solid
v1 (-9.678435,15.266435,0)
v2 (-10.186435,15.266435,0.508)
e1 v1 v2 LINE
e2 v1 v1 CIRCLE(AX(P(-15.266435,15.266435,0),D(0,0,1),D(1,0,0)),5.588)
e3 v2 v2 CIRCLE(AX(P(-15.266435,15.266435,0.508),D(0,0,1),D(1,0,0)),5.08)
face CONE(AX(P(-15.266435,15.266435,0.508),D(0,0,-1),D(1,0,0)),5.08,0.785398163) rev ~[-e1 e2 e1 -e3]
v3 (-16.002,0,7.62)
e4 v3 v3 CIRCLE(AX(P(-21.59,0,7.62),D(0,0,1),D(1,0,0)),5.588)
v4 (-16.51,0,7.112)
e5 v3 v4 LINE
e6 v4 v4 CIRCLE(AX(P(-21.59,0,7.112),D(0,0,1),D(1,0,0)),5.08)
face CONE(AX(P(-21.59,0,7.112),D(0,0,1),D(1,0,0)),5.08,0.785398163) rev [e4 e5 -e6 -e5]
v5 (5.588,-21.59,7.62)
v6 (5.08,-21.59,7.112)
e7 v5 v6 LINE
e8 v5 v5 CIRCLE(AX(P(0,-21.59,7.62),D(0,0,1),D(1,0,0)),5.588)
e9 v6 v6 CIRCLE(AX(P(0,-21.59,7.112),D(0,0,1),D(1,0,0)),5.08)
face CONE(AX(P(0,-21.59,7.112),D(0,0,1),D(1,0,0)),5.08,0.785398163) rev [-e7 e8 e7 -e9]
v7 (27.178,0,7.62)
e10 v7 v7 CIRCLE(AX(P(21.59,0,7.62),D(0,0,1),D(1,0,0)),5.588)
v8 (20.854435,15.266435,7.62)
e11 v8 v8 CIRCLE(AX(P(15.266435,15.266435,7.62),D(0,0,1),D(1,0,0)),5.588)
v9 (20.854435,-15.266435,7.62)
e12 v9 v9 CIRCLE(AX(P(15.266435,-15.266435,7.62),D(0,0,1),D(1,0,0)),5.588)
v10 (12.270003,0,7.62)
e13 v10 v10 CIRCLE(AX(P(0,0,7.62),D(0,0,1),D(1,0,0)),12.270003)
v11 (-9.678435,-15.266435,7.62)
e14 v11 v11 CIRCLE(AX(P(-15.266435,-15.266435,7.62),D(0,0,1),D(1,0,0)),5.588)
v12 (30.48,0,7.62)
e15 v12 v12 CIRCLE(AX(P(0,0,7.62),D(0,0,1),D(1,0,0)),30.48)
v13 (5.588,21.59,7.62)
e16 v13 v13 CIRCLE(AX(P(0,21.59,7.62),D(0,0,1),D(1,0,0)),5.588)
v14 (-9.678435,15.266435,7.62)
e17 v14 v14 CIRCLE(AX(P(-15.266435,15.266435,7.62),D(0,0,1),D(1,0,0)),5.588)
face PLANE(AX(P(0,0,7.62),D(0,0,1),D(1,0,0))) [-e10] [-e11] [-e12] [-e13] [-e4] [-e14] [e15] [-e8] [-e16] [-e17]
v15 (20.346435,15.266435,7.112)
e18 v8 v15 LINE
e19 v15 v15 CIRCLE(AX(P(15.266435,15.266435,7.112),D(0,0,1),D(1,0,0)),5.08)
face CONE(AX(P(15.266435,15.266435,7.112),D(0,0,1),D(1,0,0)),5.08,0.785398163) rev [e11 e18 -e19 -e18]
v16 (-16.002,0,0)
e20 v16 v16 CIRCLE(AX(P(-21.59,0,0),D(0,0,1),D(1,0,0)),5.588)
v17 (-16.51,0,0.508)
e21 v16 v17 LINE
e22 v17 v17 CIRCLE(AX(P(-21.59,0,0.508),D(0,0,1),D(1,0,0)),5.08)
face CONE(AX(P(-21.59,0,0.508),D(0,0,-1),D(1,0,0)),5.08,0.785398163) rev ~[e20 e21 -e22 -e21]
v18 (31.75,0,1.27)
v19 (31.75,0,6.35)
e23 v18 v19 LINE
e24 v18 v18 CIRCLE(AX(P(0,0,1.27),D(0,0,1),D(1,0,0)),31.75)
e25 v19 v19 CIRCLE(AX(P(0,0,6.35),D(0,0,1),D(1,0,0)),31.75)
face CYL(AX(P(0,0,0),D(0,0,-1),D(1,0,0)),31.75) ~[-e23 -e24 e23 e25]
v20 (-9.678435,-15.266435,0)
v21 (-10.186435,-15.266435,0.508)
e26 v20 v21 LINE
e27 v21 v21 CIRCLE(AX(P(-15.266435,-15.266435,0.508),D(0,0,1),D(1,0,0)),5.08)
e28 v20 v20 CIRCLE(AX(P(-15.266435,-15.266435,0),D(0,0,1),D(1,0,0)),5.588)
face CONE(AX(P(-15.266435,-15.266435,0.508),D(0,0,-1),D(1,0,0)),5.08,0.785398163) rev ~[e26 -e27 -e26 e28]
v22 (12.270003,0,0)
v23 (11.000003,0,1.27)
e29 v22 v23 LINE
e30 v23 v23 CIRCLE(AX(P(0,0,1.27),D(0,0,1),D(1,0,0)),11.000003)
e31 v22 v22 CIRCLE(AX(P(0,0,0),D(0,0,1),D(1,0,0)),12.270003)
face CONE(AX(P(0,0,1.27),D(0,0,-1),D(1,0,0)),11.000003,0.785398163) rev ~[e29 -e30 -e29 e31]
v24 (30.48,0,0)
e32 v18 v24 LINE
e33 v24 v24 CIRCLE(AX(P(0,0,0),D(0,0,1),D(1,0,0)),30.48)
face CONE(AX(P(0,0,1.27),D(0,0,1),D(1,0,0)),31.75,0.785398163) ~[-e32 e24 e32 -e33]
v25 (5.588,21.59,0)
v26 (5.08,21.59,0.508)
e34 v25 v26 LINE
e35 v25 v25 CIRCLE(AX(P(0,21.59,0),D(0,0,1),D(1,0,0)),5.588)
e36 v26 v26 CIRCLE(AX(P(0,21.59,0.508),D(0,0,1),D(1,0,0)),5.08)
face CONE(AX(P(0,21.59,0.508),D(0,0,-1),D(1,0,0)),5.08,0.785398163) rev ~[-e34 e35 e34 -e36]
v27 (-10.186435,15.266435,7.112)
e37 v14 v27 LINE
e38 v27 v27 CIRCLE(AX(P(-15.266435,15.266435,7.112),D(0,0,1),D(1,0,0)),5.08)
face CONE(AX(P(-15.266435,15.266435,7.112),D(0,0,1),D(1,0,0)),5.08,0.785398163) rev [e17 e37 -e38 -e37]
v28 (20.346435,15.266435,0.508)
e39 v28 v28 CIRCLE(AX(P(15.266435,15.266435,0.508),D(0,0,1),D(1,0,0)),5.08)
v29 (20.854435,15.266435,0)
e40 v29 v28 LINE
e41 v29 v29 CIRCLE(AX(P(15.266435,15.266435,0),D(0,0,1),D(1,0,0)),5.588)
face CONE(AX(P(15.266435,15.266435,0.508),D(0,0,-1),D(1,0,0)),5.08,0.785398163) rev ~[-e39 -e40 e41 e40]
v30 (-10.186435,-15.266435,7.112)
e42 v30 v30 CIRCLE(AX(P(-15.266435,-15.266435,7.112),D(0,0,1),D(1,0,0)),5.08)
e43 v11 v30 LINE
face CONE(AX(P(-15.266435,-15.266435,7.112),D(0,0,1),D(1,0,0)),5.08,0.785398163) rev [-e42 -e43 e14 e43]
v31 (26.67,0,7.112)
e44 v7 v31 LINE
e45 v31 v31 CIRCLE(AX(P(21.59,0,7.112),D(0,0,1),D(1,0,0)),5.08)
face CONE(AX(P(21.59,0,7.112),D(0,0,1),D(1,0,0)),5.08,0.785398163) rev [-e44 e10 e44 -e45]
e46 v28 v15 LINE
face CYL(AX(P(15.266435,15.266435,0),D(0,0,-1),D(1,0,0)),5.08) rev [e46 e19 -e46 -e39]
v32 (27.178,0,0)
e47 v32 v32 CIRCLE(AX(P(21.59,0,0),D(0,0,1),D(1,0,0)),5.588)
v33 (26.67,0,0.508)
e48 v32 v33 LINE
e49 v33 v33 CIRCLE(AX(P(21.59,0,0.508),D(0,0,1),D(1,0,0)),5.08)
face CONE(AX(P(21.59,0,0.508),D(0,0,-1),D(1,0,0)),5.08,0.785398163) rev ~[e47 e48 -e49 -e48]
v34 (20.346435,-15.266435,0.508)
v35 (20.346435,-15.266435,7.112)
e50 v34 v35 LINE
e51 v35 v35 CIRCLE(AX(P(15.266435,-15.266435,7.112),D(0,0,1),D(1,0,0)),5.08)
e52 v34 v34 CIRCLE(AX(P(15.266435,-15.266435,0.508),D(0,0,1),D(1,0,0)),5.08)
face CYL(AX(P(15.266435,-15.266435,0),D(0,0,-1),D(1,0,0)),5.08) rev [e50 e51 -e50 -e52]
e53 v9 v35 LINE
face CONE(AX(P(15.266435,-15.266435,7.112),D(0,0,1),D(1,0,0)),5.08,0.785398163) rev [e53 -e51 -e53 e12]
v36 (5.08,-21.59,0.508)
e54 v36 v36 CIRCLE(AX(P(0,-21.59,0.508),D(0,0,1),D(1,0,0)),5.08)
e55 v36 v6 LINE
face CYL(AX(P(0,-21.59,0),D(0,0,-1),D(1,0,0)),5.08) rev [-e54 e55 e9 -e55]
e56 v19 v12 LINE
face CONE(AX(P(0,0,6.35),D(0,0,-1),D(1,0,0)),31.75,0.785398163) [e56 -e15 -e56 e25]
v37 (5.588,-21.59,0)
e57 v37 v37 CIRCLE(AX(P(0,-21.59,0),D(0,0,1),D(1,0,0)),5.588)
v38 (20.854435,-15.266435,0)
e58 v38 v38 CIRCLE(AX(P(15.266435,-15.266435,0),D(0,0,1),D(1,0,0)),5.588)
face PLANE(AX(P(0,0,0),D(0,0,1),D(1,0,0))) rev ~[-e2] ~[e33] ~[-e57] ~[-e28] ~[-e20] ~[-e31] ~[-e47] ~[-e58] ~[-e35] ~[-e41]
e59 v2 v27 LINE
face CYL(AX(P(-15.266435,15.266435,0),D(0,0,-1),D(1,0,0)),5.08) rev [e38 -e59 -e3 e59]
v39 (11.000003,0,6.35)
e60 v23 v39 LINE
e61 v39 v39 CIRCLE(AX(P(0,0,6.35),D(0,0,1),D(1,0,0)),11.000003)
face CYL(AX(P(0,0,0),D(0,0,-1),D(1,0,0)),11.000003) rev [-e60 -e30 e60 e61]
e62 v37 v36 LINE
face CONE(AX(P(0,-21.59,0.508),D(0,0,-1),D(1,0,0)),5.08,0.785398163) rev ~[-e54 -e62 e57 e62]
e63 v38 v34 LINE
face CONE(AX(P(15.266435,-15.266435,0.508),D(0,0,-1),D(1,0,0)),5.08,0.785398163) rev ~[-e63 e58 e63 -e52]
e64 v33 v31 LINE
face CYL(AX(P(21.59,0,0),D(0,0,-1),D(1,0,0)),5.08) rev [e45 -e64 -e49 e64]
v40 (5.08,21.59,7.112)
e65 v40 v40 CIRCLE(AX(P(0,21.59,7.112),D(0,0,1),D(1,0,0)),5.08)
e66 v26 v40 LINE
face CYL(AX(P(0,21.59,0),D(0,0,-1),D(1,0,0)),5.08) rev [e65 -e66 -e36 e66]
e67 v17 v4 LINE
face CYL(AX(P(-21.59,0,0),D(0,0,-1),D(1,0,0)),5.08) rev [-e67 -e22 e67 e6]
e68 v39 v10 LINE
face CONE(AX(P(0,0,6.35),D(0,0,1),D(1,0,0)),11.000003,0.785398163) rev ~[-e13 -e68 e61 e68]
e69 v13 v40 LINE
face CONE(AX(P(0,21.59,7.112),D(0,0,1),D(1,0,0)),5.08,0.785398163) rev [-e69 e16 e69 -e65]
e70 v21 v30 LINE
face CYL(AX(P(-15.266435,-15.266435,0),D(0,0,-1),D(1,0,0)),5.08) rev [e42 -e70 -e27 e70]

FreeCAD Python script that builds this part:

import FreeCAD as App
import Part
import Sketcher
Q = App.Units.Quantity


def edges_at(feature, points):
    """Names of the edges that pass closest to the given points."""
    edges = feature.Shape.Edges
    near = lambda p: min(range(len(edges)), key=lambda i: edges[i].distToShape(Part.Vertex(*p))[0])
    return sorted({f"Edge{near(p) + 1}" for p in points})

doc = App.newDocument("Part")
body = doc.addObject("PartDesign::Body", "Body")

sketch1 = body.newObject("Sketcher::SketchObject", "Sketch")
sketch1.AttachmentSupport = (doc.getObject("XY_Plane"), [""])
sketch1.MapMode = "FlatFace"
sketch1.addGeometry(Part.Circle(App.Vector(0, 0, 0), App.Vector(0, 0, 1), 32), False)
sketch1.addGeometry(Part.Circle(App.Vector(-15, -15, 0), App.Vector(0, 0, 1), 5), False)
sketch1.addGeometry(Part.Circle(App.Vector(0, -22, 0), App.Vector(0, 0, 1), 5), False)
sketch1.addGeometry(Part.Circle(App.Vector(-22, 0, 0), App.Vector(0, 0, 1), 5), False)
sketch1.addGeometry(Part.Circle(App.Vector(0, 0, 0), App.Vector(0, 0, 1), 11), False)
sketch1.addGeometry(Part.Circle(App.Vector(15, -15, 0), App.Vector(0, 0, 1), 5), False)
sketch1.addGeometry(Part.Circle(App.Vector(22, 0, 0), App.Vector(0, 0, 1), 5), False)
sketch1.addGeometry(Part.Circle(App.Vector(-15, 15, 0), App.Vector(0, 0, 1), 5), False)
sketch1.addGeometry(Part.Circle(App.Vector(0, 22, 0), App.Vector(0, 0, 1), 5), False)
sketch1.addGeometry(Part.Circle(App.Vector(15, 15, 0), App.Vector(0, 0, 1), 5), False)
sketch1.addConstraint(Sketcher.Constraint("Coincident", 0, 3, -1, 1))
sketch1.addConstraint(Sketcher.Constraint("Coincident", 4, 3, -1, 1))
sketch1.addConstraint(Sketcher.Constraint("Equal", 1, 2))
sketch1.addConstraint(Sketcher.Constraint("Equal", 2, 3))
sketch1.addConstraint(Sketcher.Constraint("Equal", 3, 5))
sketch1.addConstraint(Sketcher.Constraint("Equal", 5, 6))
sketch1.addConstraint(Sketcher.Constraint("Equal", 6, 7))
sketch1.addConstraint(Sketcher.Constraint("Equal", 7, 8))
sketch1.addConstraint(Sketcher.Constraint("Equal", 8, 9))
sketch1.addConstraint(Sketcher.Constraint("Symmetric", 3, 3, 6, 3, -1, 1))
sketch1.addConstraint(Sketcher.Constraint("Symmetric", 5, 3, 7, 3, -1, 1))
sketch1.addConstraint(Sketcher.Constraint("Symmetric", 2, 3, 8, 3, -1, 1))
sketch1.addConstraint(Sketcher.Constraint("Symmetric", 1, 3, 9, 3, -1, 1))
sketch1.addConstraint(Sketcher.Constraint("Symmetric", 1, 3, 5, 3, -2))
sketch1.addConstraint(Sketcher.Constraint("PointOnObject", 2, 3, -2))
sketch1.addConstraint(Sketcher.Constraint("PointOnObject", 3, 3, -1))
sketch1.addConstraint(Sketcher.Constraint("Diameter", 0, Q("2.5 in")))
sketch1.addConstraint(Sketcher.Constraint("Diameter", 1, Q("0.4 in")))
sketch1.addConstraint(Sketcher.Constraint("DistanceY", 2, 3, -1, 1, Q("0.85 in")))
sketch1.addConstraint(Sketcher.Constraint("DistanceX", 3, 3, -1, 1, Q("0.85 in")))
sketch1.addConstraint(Sketcher.Constraint("Diameter", 4, Q("22.000006 mm")))
sketch1.addConstraint(Sketcher.Constraint("DistanceX", 1, 3, 5, 3, Q("30.53287 mm")))
sketch1.addConstraint(Sketcher.Constraint("DistanceY", 1, 3, 7, 3, Q("30.53287 mm")))
pad1 = body.newObject("PartDesign::Pad", "Pad")
pad1.Profile = sketch1
pad1.Length = Q("0.3 in")
doc.recompute()

chamfer = body.newObject("PartDesign::Chamfer", "Chamfer")
chamfer.Base = (pad1, edges_at(pad1, [(-31.75, 0, 7.62), (-11, 0, 7.62)]))
chamfer.Size = Q("0.05 in")
doc.recompute()

chamfer2 = body.newObject("PartDesign::Chamfer", "Chamfer001")
chamfer2.Base = (chamfer, edges_at(chamfer, [(-31.75, 0, 0), (-11, 0, 0)]))
chamfer2.Size = Q("0.05 in")
doc.recompute()

chamfer3 = body.newObject("PartDesign::Chamfer", "Chamfer002")
chamfer3.Base = (chamfer2, edges_at(chamfer2, [
    (-5.08, -21.59, 0),
    (20.346, -15.266, 3.81),
    (10.186, -15.266, 0),
    (10.186, -15.266, 7.62),
    (5.08, -21.59, 3.81),
    (-5.08, -21.59, 7.62),
    (-10.186, -15.266, 3.81),
    (-20.346, -15.266, 0),
    (-20.346, -15.266, 7.62),
    (-16.51, 0, 3.81),
    (-26.67, 0, 0),
    (-26.67, 0, 7.62),
    (-10.186, 15.266, 3.81),
    (-20.346, 15.266, 0),
    (-20.346, 15.266, 7.62),
    (5.08, 21.59, 3.81),
    (-5.08, 21.59, 0),
    (-5.08, 21.59, 7.62),
    (20.346, 15.266, 3.81),
    (10.186, 15.266, 0),
    (10.186, 15.266, 7.62),
    (16.51, 0, 0),
    (26.67, 0, 3.81),
    (16.51, 0, 7.62),
]))
chamfer3.Size = Q("0.02 in")

doc.recompute()
